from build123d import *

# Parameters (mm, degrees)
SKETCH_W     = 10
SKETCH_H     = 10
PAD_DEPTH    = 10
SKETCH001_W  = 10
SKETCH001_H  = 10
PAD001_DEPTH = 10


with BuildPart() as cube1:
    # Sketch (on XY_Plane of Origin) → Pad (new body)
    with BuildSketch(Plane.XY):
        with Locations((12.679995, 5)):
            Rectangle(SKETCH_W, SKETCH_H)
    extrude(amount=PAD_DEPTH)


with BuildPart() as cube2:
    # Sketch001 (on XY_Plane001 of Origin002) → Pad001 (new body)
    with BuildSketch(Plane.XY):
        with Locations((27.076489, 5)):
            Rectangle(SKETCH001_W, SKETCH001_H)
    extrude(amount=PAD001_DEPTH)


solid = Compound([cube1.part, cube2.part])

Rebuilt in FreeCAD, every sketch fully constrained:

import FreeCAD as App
import Part
import Sketcher
from FreeCAD import Vector
Q = App.Units.Quantity

doc = App.newDocument("Part")
body = doc.addObject("PartDesign::Body", "Body")

# Sketch on XY plane
sketch1 = body.newObject("Sketcher::SketchObject", "Sketch")
sketch1.AttachmentSupport = (doc.getObject("XY_Plane"), [""])
sketch1.MapMode = "FlatFace"
sketch1.addGeometry([
    Part.LineSegment(Vector(7.679995, 10, 0), Vector(7.679995, 0, 0)),
    Part.LineSegment(Vector(7.679995, 0, 0), Vector(17.679995, 0, 0)),
    Part.LineSegment(Vector(17.679995, 0, 0), Vector(17.679995, 10, 0)),
    Part.LineSegment(Vector(17.679995, 10, 0), Vector(7.679995, 10, 0)),
], False)
sketch1.addConstraint([
    Sketcher.Constraint("Coincident", 0, 2, 1, 1),
    Sketcher.Constraint("Coincident", 1, 2, 2, 1),
    Sketcher.Constraint("Coincident", 2, 2, 3, 1),
    Sketcher.Constraint("Coincident", 3, 2, 0, 1),
    Sketcher.Constraint("Vertical", 0),
    Sketcher.Constraint("Horizontal", 1),
    Sketcher.Constraint("Vertical", 2),
    Sketcher.Constraint("Horizontal", 3),
    Sketcher.Constraint("PointOnObject", 0, 2, -1),
    Sketcher.Constraint("Equal", 3, 0),
    Sketcher.Constraint("DistanceX", 1, 1, 1, 2, Q("10 mm")),
    Sketcher.Constraint("DistanceX", -1, 1, 0, 2, Q("7.679995 mm")),
])
pad1 = body.newObject("PartDesign::Pad", "Pad")
pad1.Profile = sketch1
pad1.Length = 10
body2 = doc.addObject("PartDesign::Body", "Body001")

# Sketch on XY plane
sketch2 = body2.newObject("Sketcher::SketchObject", "Sketch001")
sketch2.AttachmentSupport = (doc.getObject("XY_Plane001"), [""])
sketch2.MapMode = "FlatFace"
sketch2.addGeometry([
    Part.LineSegment(Vector(22.076489, 10, 0), Vector(22.076489, 0, 0)),
    Part.LineSegment(Vector(22.076489, 0, 0), Vector(32.076489, 0, 0)),
    Part.LineSegment(Vector(32.076489, 0, 0), Vector(32.076489, 10, 0)),
    Part.LineSegment(Vector(32.076489, 10, 0), Vector(22.076489, 10, 0)),
], False)
sketch2.addConstraint([
    Sketcher.Constraint("Coincident", 0, 2, 1, 1),
    Sketcher.Constraint("Coincident", 1, 2, 2, 1),
    Sketcher.Constraint("Coincident", 2, 2, 3, 1),
    Sketcher.Constraint("Coincident", 3, 2, 0, 1),
    Sketcher.Constraint("Vertical", 0),
    Sketcher.Constraint("Horizontal", 1),
    Sketcher.Constraint("Vertical", 2),
    Sketcher.Constraint("Horizontal", 3),
    Sketcher.Constraint("PointOnObject", 0, 2, -1),
    Sketcher.Constraint("Equal", 3, 0),
    Sketcher.Constraint("DistanceX", 1, 1, 1, 2, Q("10 mm")),
    Sketcher.Constraint("DistanceX", -1, 1, 0, 2, Q("22.076489 mm")),
])
pad2 = body2.newObject("PartDesign::Pad", "Pad001")
pad2.Profile = sketch2
pad2.Length = 10

doc.recompute()
